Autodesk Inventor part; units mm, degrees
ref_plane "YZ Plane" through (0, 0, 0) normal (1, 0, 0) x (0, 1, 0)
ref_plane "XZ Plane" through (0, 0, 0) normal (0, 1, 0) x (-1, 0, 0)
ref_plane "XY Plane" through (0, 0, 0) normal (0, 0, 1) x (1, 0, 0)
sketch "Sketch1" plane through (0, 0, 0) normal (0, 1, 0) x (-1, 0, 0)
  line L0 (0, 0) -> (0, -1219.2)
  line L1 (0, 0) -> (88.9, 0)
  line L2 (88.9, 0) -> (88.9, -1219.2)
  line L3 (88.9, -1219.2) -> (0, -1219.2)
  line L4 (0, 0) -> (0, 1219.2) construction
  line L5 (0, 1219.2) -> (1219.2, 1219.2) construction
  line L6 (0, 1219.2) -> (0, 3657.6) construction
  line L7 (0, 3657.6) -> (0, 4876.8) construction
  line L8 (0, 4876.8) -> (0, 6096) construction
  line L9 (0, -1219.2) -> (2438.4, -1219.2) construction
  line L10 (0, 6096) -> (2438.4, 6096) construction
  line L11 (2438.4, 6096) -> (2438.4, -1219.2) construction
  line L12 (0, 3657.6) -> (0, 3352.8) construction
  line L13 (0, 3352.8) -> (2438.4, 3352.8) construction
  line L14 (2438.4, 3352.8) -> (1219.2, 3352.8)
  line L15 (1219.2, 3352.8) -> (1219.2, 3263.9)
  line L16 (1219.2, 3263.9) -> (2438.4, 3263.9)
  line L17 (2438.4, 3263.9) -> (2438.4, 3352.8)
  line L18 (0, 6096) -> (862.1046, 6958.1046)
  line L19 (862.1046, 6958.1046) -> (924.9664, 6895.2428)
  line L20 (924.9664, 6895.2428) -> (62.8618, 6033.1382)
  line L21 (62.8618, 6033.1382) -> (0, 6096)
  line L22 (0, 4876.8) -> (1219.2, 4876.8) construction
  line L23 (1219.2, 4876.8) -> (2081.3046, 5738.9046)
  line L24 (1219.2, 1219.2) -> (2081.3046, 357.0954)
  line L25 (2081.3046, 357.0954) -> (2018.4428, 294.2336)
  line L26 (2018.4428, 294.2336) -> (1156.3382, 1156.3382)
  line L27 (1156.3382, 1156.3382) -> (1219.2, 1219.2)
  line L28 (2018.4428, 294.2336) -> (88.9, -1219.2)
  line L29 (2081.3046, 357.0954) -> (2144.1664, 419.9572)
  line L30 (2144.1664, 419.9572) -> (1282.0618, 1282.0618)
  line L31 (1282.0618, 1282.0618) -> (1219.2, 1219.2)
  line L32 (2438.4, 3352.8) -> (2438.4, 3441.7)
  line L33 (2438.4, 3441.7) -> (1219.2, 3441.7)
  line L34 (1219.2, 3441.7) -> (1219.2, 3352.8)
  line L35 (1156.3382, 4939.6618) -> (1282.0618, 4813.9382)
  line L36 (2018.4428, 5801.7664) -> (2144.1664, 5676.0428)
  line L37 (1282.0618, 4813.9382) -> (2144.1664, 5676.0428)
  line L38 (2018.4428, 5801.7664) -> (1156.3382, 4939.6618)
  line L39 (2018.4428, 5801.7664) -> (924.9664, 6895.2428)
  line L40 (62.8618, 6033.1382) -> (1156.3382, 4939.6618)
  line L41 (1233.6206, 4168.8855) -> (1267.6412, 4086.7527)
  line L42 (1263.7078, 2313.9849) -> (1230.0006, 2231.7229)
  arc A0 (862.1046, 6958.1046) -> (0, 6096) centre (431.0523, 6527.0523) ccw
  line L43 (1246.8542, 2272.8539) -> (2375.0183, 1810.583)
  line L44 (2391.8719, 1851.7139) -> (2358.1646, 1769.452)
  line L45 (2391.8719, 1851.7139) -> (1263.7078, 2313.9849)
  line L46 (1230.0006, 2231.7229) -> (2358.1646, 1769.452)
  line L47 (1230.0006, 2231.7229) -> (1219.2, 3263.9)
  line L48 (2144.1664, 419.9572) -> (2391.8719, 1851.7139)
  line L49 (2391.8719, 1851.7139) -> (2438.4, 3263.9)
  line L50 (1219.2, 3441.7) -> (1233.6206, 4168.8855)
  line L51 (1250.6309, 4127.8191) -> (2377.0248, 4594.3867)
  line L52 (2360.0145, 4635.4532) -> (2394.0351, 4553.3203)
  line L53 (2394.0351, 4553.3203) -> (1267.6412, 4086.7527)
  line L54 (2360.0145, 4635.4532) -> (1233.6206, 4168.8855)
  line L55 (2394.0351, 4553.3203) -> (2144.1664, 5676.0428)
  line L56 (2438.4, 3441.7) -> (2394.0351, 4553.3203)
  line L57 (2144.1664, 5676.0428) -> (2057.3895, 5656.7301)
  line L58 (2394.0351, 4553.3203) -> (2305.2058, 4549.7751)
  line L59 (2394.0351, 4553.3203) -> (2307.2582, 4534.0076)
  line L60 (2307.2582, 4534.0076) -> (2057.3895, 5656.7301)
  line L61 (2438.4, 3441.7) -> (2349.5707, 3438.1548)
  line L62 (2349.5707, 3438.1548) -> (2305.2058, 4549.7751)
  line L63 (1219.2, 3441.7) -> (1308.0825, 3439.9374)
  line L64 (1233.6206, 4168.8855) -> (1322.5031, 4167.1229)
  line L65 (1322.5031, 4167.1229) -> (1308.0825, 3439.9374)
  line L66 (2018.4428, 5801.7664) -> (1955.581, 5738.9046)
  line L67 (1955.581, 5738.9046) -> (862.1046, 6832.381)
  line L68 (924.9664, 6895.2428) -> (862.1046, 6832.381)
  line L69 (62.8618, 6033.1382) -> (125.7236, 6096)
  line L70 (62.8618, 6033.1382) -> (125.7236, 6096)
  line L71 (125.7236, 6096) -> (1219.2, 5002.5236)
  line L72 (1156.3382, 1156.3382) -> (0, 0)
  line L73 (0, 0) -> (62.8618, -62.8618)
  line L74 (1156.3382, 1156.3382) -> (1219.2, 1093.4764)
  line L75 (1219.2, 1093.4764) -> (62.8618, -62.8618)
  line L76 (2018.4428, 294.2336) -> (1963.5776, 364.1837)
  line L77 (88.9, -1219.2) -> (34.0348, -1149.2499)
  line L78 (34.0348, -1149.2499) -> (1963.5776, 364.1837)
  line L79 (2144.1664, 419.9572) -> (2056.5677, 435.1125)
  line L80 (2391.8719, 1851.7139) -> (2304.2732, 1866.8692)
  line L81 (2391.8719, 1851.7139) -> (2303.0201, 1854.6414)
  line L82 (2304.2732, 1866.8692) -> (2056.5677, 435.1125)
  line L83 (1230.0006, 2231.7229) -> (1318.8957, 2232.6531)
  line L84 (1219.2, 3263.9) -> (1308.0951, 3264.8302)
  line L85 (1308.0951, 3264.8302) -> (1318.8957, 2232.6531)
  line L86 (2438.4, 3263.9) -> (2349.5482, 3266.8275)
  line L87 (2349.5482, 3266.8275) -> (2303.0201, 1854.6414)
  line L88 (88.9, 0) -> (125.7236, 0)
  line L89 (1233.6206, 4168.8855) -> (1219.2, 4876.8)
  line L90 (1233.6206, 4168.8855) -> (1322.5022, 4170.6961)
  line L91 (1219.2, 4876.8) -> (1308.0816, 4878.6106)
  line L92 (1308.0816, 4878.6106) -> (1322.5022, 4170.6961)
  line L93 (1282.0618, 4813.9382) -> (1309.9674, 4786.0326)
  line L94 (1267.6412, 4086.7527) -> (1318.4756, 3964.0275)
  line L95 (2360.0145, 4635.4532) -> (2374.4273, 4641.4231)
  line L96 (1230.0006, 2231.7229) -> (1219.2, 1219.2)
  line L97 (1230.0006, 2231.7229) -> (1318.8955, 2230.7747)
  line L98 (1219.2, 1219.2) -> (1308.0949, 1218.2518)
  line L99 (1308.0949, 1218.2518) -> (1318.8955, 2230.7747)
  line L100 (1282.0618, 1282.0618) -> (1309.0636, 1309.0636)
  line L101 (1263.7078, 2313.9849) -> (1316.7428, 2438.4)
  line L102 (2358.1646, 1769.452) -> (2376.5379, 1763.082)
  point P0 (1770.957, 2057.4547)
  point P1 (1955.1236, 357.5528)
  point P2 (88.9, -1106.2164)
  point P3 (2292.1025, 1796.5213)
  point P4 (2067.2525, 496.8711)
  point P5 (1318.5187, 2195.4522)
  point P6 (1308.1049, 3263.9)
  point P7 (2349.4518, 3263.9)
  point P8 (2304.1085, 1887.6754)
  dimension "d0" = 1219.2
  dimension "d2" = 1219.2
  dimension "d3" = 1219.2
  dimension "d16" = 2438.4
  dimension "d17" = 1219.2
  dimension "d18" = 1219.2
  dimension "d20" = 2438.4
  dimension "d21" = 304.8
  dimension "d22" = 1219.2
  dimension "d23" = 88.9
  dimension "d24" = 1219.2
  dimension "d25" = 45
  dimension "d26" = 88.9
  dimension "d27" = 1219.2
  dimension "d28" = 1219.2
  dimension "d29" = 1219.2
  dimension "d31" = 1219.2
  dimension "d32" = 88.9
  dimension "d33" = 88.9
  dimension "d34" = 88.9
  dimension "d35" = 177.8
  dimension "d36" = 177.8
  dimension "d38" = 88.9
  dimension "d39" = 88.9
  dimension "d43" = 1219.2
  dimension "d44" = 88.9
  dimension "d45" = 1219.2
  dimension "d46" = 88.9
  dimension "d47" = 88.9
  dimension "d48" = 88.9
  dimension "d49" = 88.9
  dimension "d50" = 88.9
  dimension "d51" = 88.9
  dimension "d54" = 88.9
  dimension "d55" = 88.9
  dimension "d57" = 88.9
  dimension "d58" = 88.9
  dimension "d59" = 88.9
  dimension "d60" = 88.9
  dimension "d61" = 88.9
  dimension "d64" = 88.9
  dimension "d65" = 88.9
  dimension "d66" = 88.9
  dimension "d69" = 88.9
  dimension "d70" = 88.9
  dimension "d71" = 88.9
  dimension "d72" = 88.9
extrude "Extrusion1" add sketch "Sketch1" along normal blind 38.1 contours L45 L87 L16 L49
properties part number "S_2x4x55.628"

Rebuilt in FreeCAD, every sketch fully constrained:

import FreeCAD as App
import Part
import Sketcher
Q = App.Units.Quantity

doc = App.newDocument("Part")
params = doc.addObject("Spreadsheet::Sheet", "Params")
for row, (alias, value) in enumerate([
    ("pad1_length", "1.5 in"),
], start=1):
    params.set(f"A{row}", alias)
    params.set(f"B{row}", "=" + value)
    params.setAlias(f"B{row}", alias)

body = doc.addObject("PartDesign::Body", "Body")

sketch1 = body.newObject("Sketcher::SketchObject", "Sketch")
sketch1.AttachmentSupport = (doc.getObject("XZ_Plane"), [""])
sketch1.MapMode = "FlatFace"
sketch1.addGeometry([
    Part.LineSegment(App.Vector(-2304.10849, 1887.675405, 0), App.Vector(-2391.8719, 1851.7139, 0)),
    Part.LineSegment(App.Vector(-2391.8719, 1851.7139, 0), App.Vector(-2438.4, 3263.9, 0)),
    Part.LineSegment(App.Vector(-2438.4, 3263.9, 0), App.Vector(-2349.451746, 3263.9, 0)),
    Part.LineSegment(App.Vector(-2349.451746, 3263.9, 0), App.Vector(-2304.10849, 1887.675405, 0)),
], False)
sketch1.addConstraint([
    Sketcher.Constraint("Coincident", 0, 2, 1, 1),
    Sketcher.Constraint("Coincident", 1, 2, 2, 1),
    Sketcher.Constraint("Coincident", 2, 2, 3, 1),
    Sketcher.Constraint("Coincident", 3, 2, 0, 1),
    Sketcher.Constraint("Horizontal", 2),
    Sketcher.Constraint("DistanceX", 1, 2, -1, 1, Q("96 in")),
    Sketcher.Constraint("DistanceY", -1, 1, 1, 2, Q("128.5 in")),
    Sketcher.Constraint("DistanceX", 2, 1, 2, 2, Q("3.5019 in")),
    Sketcher.Constraint("DistanceY", 0, 2, 3, 2, Q("1.4158 in")),
    Sketcher.Constraint("Distance", 0, Q("94.8454 mm")),
    Sketcher.Constraint("Distance", 1, Q("1412.9524 mm")),
    Sketcher.Constraint("DistanceX", 0, 2, -1, 1, Q("94.168189 in")),
])
pad1 = body.newObject("PartDesign::Pad", "Pad")
pad1.Profile = sketch1
pad1.setExpression("Length", "Params.pad1_length")
pad1.Reversed = True

doc.recompute()
